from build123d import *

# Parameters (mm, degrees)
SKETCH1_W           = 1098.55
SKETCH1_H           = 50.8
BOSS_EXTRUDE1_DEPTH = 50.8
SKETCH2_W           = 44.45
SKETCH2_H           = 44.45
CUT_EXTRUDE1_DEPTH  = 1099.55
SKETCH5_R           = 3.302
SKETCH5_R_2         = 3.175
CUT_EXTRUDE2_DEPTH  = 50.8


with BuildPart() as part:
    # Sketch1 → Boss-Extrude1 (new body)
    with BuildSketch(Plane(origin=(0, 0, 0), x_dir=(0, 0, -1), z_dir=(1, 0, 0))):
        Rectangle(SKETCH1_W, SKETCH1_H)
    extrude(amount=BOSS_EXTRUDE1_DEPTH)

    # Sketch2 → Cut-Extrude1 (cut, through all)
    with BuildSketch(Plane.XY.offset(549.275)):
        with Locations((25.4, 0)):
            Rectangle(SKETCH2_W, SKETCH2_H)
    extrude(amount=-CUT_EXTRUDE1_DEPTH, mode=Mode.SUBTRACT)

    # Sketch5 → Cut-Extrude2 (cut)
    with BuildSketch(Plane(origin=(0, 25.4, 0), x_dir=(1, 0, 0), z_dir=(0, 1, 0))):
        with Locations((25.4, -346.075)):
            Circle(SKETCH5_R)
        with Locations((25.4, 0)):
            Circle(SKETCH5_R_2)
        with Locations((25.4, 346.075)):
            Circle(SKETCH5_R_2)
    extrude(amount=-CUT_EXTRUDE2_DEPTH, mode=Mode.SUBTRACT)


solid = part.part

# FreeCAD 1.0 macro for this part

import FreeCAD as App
import Part
import Sketcher

V = App.Vector
Q = App.Units.Quantity


def add_polygon(sketch, points):
    """Adds a closed chain of lines whose ends are joined by coincident constraints."""
    first, n = sketch.GeometryCount, len(points)
    for a, b in zip(points, points[1:] + points[:1]):
        sketch.addGeometry(Part.LineSegment(App.Vector(*a, 0), App.Vector(*b, 0)), False)
    for i in range(n):
        sketch.addConstraint(Sketcher.Constraint("Coincident", first + i, 2, first + (i + 1) % n, 1))

doc = App.newDocument("Part")
body = doc.addObject("PartDesign::Body", "Body")

# Sketch on YZ plane
sketch1 = body.newObject("Sketcher::SketchObject", "Sketch")
sketch1.AttachmentSupport = (doc.getObject("YZ_Plane"), [""])
sketch1.MapMode = "FlatFace"
add_polygon(sketch1, [(25, 549), (-25, 549), (-25, -549), (25, -549)])  # lines 0-3
sketch1.addConstraint([
    Sketcher.Constraint("Horizontal", 0),
    Sketcher.Constraint("Vertical", 1),
    Sketcher.Constraint("Horizontal", 2),
    Sketcher.Constraint("Vertical", 3),
    Sketcher.Constraint("Symmetric", 0, 2, 2, 2, -1, 1),
    Sketcher.Constraint("DistanceX", 0, 2, 0, 1, Q("2 in")),
    Sketcher.Constraint("DistanceY", 1, 2, 1, 1, Q("43.25 in")),
])
pad1 = body.newObject("PartDesign::Pad", "Pad")
pad1.Profile = sketch1
pad1.Length = Q("2 in")

# Sketch on XY plane
sketch2 = body.newObject("Sketcher::SketchObject", "Sketch001")
sketch2.AttachmentSupport = (doc.getObject("XY_Plane"), [""])
sketch2.MapMode = "FlatFace"
sketch2.AttachmentOffset = App.Placement(V(0, 0, 21.625 * 25.4), App.Rotation())
add_polygon(sketch2, [(3, 22), (3, -22), (48, -22), (48, 22)])  # lines 0-3
sketch2.addConstraint([
    Sketcher.Constraint("Vertical", 0),
    Sketcher.Constraint("Horizontal", 1),
    Sketcher.Constraint("Vertical", 2),
    Sketcher.Constraint("Horizontal", 3),
    Sketcher.Constraint("Equal", 3, 0),
    Sketcher.Constraint("DistanceX", 1, 1, 1, 2, Q("1.75 in")),
    Sketcher.Constraint("DistanceX", -1, 1, 0, 2, Q("0.125 in")),
    Sketcher.Constraint("DistanceY", 0, 2, -1, 1, Q("0.875 in")),
])
pocket1 = body.newObject("PartDesign::Pocket", "Pocket")
pocket1.Profile = sketch2
pocket1.Type = "ThroughAll"

# Sketch on XZ plane
sketch3 = body.newObject("Sketcher::SketchObject", "Sketch002")
sketch3.AttachmentSupport = (doc.getObject("XZ_Plane"), [""])
sketch3.MapMode = "FlatFace"
sketch3.AttachmentOffset = App.Placement(V(0, 0, -1 * 25.4), App.Rotation())
sketch3.addGeometry([
    Part.Circle(V(25.4, 346.1, 0), V(0, 0, 1), 3.3),
    Part.Circle(V(25.4, 0, 0), V(0, 0, 1), 3.2),
    Part.Circle(V(25.4, -346.1, 0), V(0, 0, 1), 3.2),
], False)
sketch3.addConstraint([
    Sketcher.Constraint("Equal", 1, 2),
    Sketcher.Constraint("Symmetric", 0, 3, 2, 3, -1),
    Sketcher.Constraint("PointOnObject", 1, 3, -1),
    Sketcher.Constraint("Vertical", 0, 3, 1, 3),
    Sketcher.Constraint("Diameter", 0, Q("0.26 in")),
    Sketcher.Constraint("Diameter", 1, Q("0.25 in")),
    Sketcher.Constraint("DistanceX", -1, 1, 0, 3, Q("1 in")),
    Sketcher.Constraint("DistanceY", 2, 3, 0, 3, Q("27.25 in")),
])
pocket2 = body.newObject("PartDesign::Pocket", "Pocket001")
pocket2.Profile = sketch3
pocket2.Length = Q("2 in")
pocket2.Reversed = True

doc.recompute()
